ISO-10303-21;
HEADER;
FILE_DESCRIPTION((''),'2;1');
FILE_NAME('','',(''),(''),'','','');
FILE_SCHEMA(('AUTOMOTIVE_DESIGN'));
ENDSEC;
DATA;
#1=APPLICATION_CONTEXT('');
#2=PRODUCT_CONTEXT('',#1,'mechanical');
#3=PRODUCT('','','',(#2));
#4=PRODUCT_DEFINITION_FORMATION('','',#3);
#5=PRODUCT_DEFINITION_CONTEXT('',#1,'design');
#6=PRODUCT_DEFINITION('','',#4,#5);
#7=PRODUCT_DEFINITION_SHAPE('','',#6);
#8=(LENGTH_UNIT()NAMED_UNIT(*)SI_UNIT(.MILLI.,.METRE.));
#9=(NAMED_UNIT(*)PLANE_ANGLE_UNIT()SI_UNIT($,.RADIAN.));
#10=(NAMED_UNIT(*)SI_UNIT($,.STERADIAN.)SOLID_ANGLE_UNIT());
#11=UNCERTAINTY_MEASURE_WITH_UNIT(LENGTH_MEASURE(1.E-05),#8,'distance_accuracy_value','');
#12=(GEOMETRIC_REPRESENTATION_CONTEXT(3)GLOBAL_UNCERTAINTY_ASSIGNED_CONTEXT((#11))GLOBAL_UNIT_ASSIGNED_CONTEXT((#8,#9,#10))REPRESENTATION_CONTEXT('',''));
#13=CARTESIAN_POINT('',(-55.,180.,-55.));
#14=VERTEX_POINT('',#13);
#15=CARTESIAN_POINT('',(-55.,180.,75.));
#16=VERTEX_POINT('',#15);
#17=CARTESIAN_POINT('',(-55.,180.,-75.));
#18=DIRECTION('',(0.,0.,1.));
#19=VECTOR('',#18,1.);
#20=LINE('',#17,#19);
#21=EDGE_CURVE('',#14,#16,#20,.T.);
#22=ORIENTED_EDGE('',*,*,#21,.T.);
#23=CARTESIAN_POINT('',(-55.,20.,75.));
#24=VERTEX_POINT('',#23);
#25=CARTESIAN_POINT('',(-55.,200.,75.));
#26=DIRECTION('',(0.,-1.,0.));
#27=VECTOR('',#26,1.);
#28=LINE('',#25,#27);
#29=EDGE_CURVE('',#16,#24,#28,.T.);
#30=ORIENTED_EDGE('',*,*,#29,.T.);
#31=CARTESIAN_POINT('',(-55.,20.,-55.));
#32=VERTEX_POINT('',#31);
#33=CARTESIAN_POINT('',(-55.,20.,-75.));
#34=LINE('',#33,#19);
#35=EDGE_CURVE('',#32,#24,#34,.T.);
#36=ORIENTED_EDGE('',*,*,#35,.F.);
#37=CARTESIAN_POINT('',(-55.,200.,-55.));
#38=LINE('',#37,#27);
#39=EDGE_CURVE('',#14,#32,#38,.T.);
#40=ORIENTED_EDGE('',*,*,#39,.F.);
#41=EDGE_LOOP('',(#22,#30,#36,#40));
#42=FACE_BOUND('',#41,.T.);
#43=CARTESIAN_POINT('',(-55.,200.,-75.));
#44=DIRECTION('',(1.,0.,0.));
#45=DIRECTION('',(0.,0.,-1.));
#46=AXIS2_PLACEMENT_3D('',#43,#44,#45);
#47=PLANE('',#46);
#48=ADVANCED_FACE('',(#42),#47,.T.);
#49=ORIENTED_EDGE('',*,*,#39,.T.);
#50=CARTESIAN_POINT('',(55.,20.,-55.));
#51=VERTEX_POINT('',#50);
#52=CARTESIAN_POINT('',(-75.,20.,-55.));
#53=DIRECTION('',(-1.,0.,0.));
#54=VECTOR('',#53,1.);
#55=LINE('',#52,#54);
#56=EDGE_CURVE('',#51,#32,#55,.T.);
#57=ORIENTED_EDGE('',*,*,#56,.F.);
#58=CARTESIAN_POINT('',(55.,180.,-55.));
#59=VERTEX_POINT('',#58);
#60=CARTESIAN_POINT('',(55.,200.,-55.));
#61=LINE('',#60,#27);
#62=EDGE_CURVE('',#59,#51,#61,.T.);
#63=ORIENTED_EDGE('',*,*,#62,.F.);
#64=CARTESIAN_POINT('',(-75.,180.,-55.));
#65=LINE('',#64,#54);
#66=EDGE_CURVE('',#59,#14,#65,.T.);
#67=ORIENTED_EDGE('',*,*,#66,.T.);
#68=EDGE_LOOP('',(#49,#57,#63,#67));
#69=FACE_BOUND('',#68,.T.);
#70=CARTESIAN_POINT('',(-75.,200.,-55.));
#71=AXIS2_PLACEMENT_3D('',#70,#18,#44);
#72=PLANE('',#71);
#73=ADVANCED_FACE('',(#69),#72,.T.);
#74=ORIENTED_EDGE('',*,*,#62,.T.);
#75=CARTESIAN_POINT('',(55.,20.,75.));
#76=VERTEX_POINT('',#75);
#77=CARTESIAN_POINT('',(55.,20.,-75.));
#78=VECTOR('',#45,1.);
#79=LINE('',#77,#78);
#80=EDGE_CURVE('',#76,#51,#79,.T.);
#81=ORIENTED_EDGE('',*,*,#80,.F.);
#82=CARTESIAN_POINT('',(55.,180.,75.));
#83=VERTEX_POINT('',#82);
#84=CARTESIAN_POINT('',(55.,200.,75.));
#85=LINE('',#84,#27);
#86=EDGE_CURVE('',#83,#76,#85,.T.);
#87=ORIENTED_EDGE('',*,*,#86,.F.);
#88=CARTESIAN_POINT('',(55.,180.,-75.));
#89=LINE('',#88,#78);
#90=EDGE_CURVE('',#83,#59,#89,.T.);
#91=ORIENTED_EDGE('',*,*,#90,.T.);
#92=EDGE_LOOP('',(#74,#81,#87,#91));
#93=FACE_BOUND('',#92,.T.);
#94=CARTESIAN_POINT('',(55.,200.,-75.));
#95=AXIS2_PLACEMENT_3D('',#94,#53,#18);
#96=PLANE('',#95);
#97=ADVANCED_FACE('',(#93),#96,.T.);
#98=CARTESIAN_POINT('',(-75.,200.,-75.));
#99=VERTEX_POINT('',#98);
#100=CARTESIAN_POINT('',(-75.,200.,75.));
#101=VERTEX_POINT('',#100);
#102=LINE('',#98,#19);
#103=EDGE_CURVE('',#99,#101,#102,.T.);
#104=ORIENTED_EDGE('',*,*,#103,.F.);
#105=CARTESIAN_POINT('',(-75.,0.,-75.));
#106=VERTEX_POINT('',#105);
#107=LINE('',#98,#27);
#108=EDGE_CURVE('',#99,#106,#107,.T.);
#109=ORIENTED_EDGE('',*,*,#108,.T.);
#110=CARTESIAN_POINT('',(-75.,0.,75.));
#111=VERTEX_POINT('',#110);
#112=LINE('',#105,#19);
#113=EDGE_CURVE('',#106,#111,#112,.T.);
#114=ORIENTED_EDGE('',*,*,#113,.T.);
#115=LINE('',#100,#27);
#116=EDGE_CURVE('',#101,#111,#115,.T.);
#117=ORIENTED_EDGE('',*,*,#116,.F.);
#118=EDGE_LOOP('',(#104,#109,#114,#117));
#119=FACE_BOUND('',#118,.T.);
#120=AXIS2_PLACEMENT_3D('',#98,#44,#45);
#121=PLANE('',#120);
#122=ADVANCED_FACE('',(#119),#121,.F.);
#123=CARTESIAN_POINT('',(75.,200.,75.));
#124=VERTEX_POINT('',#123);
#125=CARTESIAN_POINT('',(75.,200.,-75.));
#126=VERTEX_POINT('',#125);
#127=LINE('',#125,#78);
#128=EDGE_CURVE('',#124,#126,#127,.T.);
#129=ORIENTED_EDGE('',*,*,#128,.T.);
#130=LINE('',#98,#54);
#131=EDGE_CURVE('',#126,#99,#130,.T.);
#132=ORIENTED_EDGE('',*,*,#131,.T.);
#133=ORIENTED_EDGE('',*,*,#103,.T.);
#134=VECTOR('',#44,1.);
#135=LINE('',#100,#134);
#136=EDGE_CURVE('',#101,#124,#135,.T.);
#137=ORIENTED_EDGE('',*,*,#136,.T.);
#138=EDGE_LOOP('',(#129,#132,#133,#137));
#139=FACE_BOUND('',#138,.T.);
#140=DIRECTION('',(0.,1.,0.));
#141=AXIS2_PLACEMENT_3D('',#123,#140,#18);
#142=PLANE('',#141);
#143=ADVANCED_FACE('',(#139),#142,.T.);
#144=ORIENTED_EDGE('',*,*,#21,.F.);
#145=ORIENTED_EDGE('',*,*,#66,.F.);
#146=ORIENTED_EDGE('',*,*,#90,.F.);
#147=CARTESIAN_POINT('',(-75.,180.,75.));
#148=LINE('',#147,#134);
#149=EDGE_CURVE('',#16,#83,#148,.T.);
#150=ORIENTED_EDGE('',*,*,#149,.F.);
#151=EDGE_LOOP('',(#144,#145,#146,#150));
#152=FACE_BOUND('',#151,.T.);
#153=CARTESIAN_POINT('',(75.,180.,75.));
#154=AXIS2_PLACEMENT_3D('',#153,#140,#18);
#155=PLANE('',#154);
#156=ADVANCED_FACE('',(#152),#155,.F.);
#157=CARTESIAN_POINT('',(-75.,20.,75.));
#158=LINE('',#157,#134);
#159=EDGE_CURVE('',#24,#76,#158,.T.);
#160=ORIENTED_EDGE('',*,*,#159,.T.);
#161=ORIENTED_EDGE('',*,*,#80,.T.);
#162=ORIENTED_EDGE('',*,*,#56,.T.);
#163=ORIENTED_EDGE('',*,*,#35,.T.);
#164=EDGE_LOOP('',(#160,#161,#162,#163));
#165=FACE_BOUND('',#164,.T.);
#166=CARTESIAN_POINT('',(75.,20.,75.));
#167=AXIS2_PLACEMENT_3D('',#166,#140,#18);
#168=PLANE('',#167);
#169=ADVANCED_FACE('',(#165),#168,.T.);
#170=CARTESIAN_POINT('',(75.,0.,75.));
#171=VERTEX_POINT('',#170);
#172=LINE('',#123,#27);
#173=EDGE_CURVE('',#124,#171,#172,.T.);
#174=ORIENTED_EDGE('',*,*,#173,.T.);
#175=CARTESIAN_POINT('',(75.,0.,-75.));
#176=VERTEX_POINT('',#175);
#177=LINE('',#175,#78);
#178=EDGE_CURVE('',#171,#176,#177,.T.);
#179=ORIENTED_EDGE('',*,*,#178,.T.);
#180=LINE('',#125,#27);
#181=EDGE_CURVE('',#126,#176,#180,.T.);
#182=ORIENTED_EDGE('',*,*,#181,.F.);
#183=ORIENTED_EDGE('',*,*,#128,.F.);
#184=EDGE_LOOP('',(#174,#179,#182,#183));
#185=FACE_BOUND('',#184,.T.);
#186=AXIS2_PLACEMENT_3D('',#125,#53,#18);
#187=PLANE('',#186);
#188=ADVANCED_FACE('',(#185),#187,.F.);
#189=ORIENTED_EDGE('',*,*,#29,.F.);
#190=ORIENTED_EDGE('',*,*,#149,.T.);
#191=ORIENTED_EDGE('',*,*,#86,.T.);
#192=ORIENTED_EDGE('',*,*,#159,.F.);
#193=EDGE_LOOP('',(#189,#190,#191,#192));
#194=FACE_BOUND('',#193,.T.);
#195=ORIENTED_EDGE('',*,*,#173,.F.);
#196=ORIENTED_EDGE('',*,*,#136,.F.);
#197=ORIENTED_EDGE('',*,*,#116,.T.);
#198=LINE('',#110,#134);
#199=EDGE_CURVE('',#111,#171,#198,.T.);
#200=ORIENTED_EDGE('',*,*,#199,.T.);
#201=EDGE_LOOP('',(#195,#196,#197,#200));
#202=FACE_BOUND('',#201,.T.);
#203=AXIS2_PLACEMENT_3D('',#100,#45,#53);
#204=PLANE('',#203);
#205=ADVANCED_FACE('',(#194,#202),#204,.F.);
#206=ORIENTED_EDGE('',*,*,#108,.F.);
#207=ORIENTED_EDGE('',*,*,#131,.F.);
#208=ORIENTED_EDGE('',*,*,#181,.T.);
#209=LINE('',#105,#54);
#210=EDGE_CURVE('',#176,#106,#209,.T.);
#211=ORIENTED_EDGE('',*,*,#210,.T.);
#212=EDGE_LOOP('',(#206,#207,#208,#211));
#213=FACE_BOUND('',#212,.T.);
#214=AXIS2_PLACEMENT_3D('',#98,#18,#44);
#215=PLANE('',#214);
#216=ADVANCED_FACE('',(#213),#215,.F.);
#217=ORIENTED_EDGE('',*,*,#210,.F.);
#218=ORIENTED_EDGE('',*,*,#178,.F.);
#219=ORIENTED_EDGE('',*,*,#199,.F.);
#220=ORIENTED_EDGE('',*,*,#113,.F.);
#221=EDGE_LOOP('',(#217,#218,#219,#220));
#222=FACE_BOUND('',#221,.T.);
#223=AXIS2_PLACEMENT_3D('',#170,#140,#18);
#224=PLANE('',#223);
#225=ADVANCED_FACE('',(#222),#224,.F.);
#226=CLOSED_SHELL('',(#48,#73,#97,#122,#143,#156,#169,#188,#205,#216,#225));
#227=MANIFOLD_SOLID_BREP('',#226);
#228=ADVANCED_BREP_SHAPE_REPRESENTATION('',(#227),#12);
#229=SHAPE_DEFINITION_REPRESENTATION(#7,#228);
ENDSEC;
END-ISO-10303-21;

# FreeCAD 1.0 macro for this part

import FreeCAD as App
import Part
import Sketcher
from FreeCAD import Vector


def faces_at(feature, points):
    """Names of the faces that lie closest to the given points."""
    faces = feature.Shape.Faces
    near = lambda p: min(range(len(faces)), key=lambda i: faces[i].distToShape(Part.Vertex(*p))[0])
    return sorted({f"Face{near(p) + 1}" for p in points})


def add_polygon(sketch, points):
    """Adds a closed chain of lines whose ends are joined by coincident constraints."""
    first, n = sketch.GeometryCount, len(points)
    for a, b in zip(points, points[1:] + points[:1]):
        sketch.addGeometry(Part.LineSegment(App.Vector(*a, 0), App.Vector(*b, 0)), False)
    for i in range(n):
        sketch.addConstraint(Sketcher.Constraint("Coincident", first + i, 2, first + (i + 1) % n, 1))

doc = App.newDocument("Part")
params = doc.addObject("Spreadsheet::Sheet", "Params")
for row, (alias, value) in enumerate([
    ("sketch1_width", "150 mm"),
    ("pad1_length", "200 mm"),
    ("thickness_wall", "20 mm"),
], start=1):
    params.set(f"A{row}", alias)
    params.set(f"B{row}", "=" + value)
    params.setAlias(f"B{row}", alias)

body = doc.addObject("PartDesign::Body", "Body")

# Sketch on XZ plane
sketch1 = body.newObject("Sketcher::SketchObject", "Sketch")
sketch1.AttachmentSupport = (doc.getObject("XZ_Plane"), [""])
sketch1.MapMode = "FlatFace"
add_polygon(sketch1, [(-75, -75), (-75, 75), (75, 75), (75, -75)])  # lines 0-3
sketch1.addConstraint([
    Sketcher.Constraint("Vertical", 0),
    Sketcher.Constraint("Horizontal", 1),
    Sketcher.Constraint("Vertical", 2),
    Sketcher.Constraint("Horizontal", 3),
    Sketcher.Constraint("Symmetric", 0, 2, 2, 2, -1, 1),
    Sketcher.Constraint("Equal", 3, 0),
    Sketcher.Constraint("DistanceX", 1, 1, 1, 2, 150.0),
])
sketch1.setExpression("Constraints[10]", "Params.sketch1_width")
pad1 = body.newObject("PartDesign::Pad", "Pad")
pad1.Profile = sketch1
pad1.setExpression("Length", "Params.pad1_length")
pad1.Reversed = True
doc.recompute()

thickness = body.newObject("PartDesign::Thickness", "Thickness")
thickness.Base = (pad1, faces_at(pad1, [(0, 100, 75)]))
thickness.setExpression("Value", "Params.thickness_wall")
thickness.Reversed = True
thickness.Join = "Intersection"

doc.recompute()
